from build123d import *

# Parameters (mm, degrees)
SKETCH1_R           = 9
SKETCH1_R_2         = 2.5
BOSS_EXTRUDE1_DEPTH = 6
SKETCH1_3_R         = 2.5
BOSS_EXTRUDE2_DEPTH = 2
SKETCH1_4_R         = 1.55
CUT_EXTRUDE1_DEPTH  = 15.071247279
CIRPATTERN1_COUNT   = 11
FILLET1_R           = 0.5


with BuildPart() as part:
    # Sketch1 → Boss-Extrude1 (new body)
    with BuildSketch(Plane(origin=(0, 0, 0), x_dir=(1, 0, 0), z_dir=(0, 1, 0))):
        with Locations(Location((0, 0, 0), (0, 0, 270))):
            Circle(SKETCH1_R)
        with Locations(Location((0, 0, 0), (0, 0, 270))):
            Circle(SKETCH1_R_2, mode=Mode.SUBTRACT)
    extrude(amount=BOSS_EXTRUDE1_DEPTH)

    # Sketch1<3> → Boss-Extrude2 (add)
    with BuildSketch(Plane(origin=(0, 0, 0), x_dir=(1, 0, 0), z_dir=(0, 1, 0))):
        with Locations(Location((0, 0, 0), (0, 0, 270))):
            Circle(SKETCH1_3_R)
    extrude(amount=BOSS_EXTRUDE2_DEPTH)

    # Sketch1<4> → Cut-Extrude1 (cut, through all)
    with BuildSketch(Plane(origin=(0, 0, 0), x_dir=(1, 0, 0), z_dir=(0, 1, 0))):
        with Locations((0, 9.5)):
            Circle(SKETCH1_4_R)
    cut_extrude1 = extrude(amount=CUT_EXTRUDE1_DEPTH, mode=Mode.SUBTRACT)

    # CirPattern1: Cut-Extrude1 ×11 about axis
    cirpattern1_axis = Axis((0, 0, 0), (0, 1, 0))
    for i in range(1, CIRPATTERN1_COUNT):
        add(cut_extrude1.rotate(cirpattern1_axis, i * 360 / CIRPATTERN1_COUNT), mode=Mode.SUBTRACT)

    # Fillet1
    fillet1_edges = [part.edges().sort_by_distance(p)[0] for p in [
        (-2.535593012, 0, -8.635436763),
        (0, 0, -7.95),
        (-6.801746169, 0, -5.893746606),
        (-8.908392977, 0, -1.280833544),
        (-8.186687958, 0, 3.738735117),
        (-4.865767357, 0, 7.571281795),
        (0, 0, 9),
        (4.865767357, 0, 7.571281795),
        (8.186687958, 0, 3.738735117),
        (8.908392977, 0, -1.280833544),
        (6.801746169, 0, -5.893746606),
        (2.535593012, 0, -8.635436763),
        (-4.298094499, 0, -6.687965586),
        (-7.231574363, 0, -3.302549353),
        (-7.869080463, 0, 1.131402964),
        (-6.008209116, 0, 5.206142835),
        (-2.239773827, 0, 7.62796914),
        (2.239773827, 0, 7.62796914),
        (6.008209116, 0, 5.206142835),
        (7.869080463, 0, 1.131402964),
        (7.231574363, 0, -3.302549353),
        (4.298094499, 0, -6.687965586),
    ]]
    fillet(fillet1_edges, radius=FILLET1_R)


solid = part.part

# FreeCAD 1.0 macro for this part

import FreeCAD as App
import Part
import Sketcher


def edges_at(feature, points):
    """Names of the edges that pass closest to the given points."""
    edges = feature.Shape.Edges
    near = lambda p: min(range(len(edges)), key=lambda i: edges[i].distToShape(Part.Vertex(*p))[0])
    return sorted({f"Edge{near(p) + 1}" for p in points})

doc = App.newDocument("Part")
body = doc.addObject("PartDesign::Body", "Body")

# Sketch on XZ plane
sketch1 = doc.addObject("Sketcher::SketchObject", "Sketch")
body.addObject(sketch1)
sketch1.AttachmentSupport = (doc.XZ_Plane, [""])
sketch1.MapMode = "FlatFace"
sketch1.addGeometry(Part.Circle(App.Vector(0, 0, 0), App.Vector(0, 0, 1), 9), False)
sketch1.addGeometry(Part.Circle(App.Vector(0, 0, 0), App.Vector(0, 0, 1), 2.5), False)
sketch1.addConstraint(Sketcher.Constraint("Coincident", 0, 3, -1, 1))
sketch1.addConstraint(Sketcher.Constraint("Coincident", 1, 3, -1, 1))
sketch1.addConstraint(Sketcher.Constraint("Diameter", 0, 18.0))
sketch1.addConstraint(Sketcher.Constraint("Diameter", 1, 5.0))
pad1 = doc.addObject("PartDesign::Pad", "Pad")
body.addObject(pad1)
pad1.Profile = sketch1
pad1.Length = 6
pad1.Reversed = True

# Sketch on XZ plane
sketch2 = doc.addObject("Sketcher::SketchObject", "Sketch001")
body.addObject(sketch2)
sketch2.AttachmentSupport = (doc.XZ_Plane, [""])
sketch2.MapMode = "FlatFace"
sketch2.addGeometry(Part.Circle(App.Vector(0, 0, 0), App.Vector(0, 0, 1), 2.5), False)
sketch2.addConstraint(Sketcher.Constraint("Coincident", 0, 3, -1, 1))
sketch2.addConstraint(Sketcher.Constraint("Diameter", 0, 5.0))
pad2 = doc.addObject("PartDesign::Pad", "Pad001")
body.addObject(pad2)
pad2.Profile = sketch2
pad2.Length = 2
pad2.Reversed = True

# Sketch on XZ plane
sketch3 = doc.addObject("Sketcher::SketchObject", "Sketch002")
body.addObject(sketch3)
sketch3.AttachmentSupport = (doc.XZ_Plane, [""])
sketch3.MapMode = "FlatFace"
sketch3.addGeometry(Part.Circle(App.Vector(0, -9.5, 0), App.Vector(0, 0, 1), 1.6), False)
sketch3.addConstraint(Sketcher.Constraint("PointOnObject", 0, 3, -2))
sketch3.addConstraint(Sketcher.Constraint("Diameter", 0, 3.1))
sketch3.addConstraint(Sketcher.Constraint("DistanceY", 0, 3, -1, 1, 9.5))
pocket1 = doc.addObject("PartDesign::Pocket", "Pocket")
body.addObject(pocket1)
pocket1.Profile = sketch3
pocket1.Type = "ThroughAll"
doc.recompute()

polarpattern = doc.addObject("PartDesign::PolarPattern", "PolarPattern")
body.addObject(polarpattern)
polarpattern.Originals = [pocket1]
polarpattern.Axis = (doc.Y_Axis, [""])
polarpattern.Angle = 360
polarpattern.Occurrences = 11
body.Tip = polarpattern
doc.recompute()

fillet = doc.addObject("PartDesign::Fillet", "Fillet")
body.addObject(fillet)
fillet.Base = (polarpattern, edges_at(polarpattern, [
    (-2.536, 0, -8.635),
    (0, 0, -7.95),
    (-6.802, 0, -5.894),
    (-8.908, 0, -1.281),
    (-8.187, 0, 3.739),
    (-4.866, 0, 7.571),
    (0, 0, 9),
    (4.866, 0, 7.571),
    (8.187, 0, 3.739),
    (8.908, 0, -1.281),
    (6.802, 0, -5.894),
    (2.536, 0, -8.635),
    (-4.298, 0, -6.688),
    (-7.232, 0, -3.303),
    (-7.869, 0, 1.131),
    (-6.008, 0, 5.206),
    (-2.24, 0, 7.628),
    (2.24, 0, 7.628),
    (6.008, 0, 5.206),
    (7.869, 0, 1.131),
    (7.232, 0, -3.303),
    (4.298, 0, -6.688),
]))
fillet.Radius = 0.5

doc.recompute()
